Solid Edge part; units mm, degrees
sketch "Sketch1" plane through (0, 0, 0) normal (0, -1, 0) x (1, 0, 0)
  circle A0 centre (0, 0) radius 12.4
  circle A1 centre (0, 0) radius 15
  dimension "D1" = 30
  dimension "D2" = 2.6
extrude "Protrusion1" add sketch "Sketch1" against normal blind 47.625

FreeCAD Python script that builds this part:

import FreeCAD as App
import Part
import Sketcher

doc = App.newDocument("Part")
body = doc.addObject("PartDesign::Body", "Body")

# Sketch on XZ plane
sketch1 = doc.addObject("Sketcher::SketchObject", "Sketch")
body.addObject(sketch1)
sketch1.AttachmentSupport = (doc.XZ_Plane, [""])
sketch1.MapMode = "FlatFace"
sketch1.addGeometry([
    Part.Circle(App.Vector(0, 0, 0), App.Vector(0, 0, 1), 15),
    Part.Circle(App.Vector(0, 0, 0), App.Vector(0, 0, 1), 12),
], False)
sketch1.addConstraint([
    Sketcher.Constraint("Coincident", 0, 3, -1, 1),
    Sketcher.Constraint("Coincident", 1, 3, -1, 1),
    Sketcher.Constraint("Diameter", 0, 30.0),
    Sketcher.Constraint("Diameter", 1, 24.8),
])
pad1 = doc.addObject("PartDesign::Pad", "Pad")
body.addObject(pad1)
pad1.Profile = sketch1
pad1.Length = 47.625
pad1.Reversed = True

doc.recompute()
